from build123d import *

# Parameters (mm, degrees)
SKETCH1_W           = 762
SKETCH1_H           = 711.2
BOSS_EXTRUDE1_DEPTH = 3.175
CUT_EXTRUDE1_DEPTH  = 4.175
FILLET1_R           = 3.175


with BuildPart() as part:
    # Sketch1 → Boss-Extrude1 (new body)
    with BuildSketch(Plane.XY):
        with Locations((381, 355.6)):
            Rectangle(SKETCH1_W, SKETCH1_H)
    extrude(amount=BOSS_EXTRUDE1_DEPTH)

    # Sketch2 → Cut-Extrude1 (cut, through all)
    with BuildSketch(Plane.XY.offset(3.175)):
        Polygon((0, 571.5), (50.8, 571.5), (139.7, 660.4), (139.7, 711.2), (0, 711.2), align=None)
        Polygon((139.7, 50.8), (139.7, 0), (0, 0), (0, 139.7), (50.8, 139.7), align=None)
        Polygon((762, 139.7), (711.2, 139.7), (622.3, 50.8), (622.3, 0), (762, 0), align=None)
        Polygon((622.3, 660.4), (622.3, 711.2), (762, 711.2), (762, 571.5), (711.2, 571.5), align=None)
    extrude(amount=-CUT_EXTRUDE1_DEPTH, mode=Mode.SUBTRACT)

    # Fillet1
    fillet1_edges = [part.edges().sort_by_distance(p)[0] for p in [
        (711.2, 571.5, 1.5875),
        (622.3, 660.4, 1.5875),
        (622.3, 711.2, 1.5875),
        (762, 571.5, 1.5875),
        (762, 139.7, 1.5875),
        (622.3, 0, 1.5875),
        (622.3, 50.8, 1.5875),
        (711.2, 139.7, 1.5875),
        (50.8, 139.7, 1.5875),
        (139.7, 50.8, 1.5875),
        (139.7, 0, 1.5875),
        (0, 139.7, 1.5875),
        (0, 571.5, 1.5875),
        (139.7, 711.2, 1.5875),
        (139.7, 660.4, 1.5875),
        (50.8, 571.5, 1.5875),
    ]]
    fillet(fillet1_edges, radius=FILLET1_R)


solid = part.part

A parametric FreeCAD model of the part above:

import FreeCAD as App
import Part
import Sketcher
from FreeCAD import Vector
Q = App.Units.Quantity


def edges_at(feature, points):
    """Names of the edges that pass closest to the given points."""
    edges = feature.Shape.Edges
    near = lambda p: min(range(len(edges)), key=lambda i: edges[i].distToShape(Part.Vertex(*p))[0])
    return sorted({f"Edge{near(p) + 1}" for p in points})

doc = App.newDocument("Part")
body = doc.addObject("PartDesign::Body", "Body")

sketch1 = doc.addObject("Sketcher::SketchObject", "Sketch")
body.addObject(sketch1)
sketch1.AttachmentSupport = (doc.XY_Plane, [""])
sketch1.MapMode = "FlatFace"
sketch1.addGeometry(Part.LineSegment(Vector(0, 711, 0), Vector(0, 0, 0)), False)
sketch1.addGeometry(Part.LineSegment(Vector(0, 0, 0), Vector(762, 0, 0)), False)
sketch1.addGeometry(Part.LineSegment(Vector(762, 0, 0), Vector(762, 711, 0)), False)
sketch1.addGeometry(Part.LineSegment(Vector(762, 711, 0), Vector(0, 711, 0)), False)
sketch1.addConstraint(Sketcher.Constraint("Coincident", 0, 2, 1, 1))
sketch1.addConstraint(Sketcher.Constraint("Coincident", 1, 2, 2, 1))
sketch1.addConstraint(Sketcher.Constraint("Coincident", 2, 2, 3, 1))
sketch1.addConstraint(Sketcher.Constraint("Coincident", 3, 2, 0, 1))
sketch1.addConstraint(Sketcher.Constraint("Vertical", 0))
sketch1.addConstraint(Sketcher.Constraint("Horizontal", 1))
sketch1.addConstraint(Sketcher.Constraint("Vertical", 2))
sketch1.addConstraint(Sketcher.Constraint("Horizontal", 3))
sketch1.addConstraint(Sketcher.Constraint("Coincident", 0, 2, -1, 1))
sketch1.addConstraint(Sketcher.Constraint("DistanceX", 1, 1, 1, 2, Q("30 in")))
sketch1.addConstraint(Sketcher.Constraint("DistanceY", 0, 2, 0, 1, Q("28 in")))
pad1 = doc.addObject("PartDesign::Pad", "Pad")
body.addObject(pad1)
pad1.Profile = sketch1
pad1.Length = Q("0.125 in")

sketch2 = doc.addObject("Sketcher::SketchObject", "Sketch001")
body.addObject(sketch2)
sketch2.AttachmentSupport = (doc.XY_Plane, [""])
sketch2.MapMode = "FlatFace"
sketch2.AttachmentOffset = App.Placement(Vector(0, 0, 0.125 * 25.4), App.Rotation())
sketch2.addGeometry(Part.LineSegment(Vector(0, 572, 0), Vector(51, 572, 0)), False)
sketch2.addGeometry(Part.LineSegment(Vector(51, 572, 0), Vector(140, 660, 0)), False)
sketch2.addGeometry(Part.LineSegment(Vector(140, 660, 0), Vector(140, 711, 0)), False)
sketch2.addGeometry(Part.LineSegment(Vector(140, 711, 0), Vector(0, 711, 0)), False)
sketch2.addGeometry(Part.LineSegment(Vector(0, 711, 0), Vector(0, 572, 0)), False)
sketch2.addGeometry(Part.LineSegment(Vector(140, 0, 0), Vector(140, 51, 0)), False)
sketch2.addGeometry(Part.LineSegment(Vector(140, 51, 0), Vector(51, 140, 0)), False)
sketch2.addGeometry(Part.LineSegment(Vector(51, 140, 0), Vector(0, 140, 0)), False)
sketch2.addGeometry(Part.LineSegment(Vector(0, 140, 0), Vector(0, 0, 0)), False)
sketch2.addGeometry(Part.LineSegment(Vector(0, 0, 0), Vector(140, 0, 0)), False)
sketch2.addGeometry(Part.LineSegment(Vector(762, 140, 0), Vector(711, 140, 0)), False)
sketch2.addGeometry(Part.LineSegment(Vector(711, 140, 0), Vector(622, 51, 0)), False)
sketch2.addGeometry(Part.LineSegment(Vector(622, 51, 0), Vector(622, 0, 0)), False)
sketch2.addGeometry(Part.LineSegment(Vector(622, 0, 0), Vector(762, 0, 0)), False)
sketch2.addGeometry(Part.LineSegment(Vector(762, 0, 0), Vector(762, 140, 0)), False)
sketch2.addGeometry(Part.LineSegment(Vector(622, 711, 0), Vector(622, 660, 0)), False)
sketch2.addGeometry(Part.LineSegment(Vector(622, 660, 0), Vector(711, 572, 0)), False)
sketch2.addGeometry(Part.LineSegment(Vector(711, 572, 0), Vector(762, 572, 0)), False)
sketch2.addGeometry(Part.LineSegment(Vector(762, 572, 0), Vector(762, 711, 0)), False)
sketch2.addGeometry(Part.LineSegment(Vector(762, 711, 0), Vector(622, 711, 0)), False)
sketch2.addConstraint(Sketcher.Constraint("Coincident", 0, 2, 1, 1))
sketch2.addConstraint(Sketcher.Constraint("Coincident", 1, 2, 2, 1))
sketch2.addConstraint(Sketcher.Constraint("Coincident", 2, 2, 3, 1))
sketch2.addConstraint(Sketcher.Constraint("Coincident", 3, 2, 4, 1))
sketch2.addConstraint(Sketcher.Constraint("Coincident", 4, 2, 0, 1))
sketch2.addConstraint(Sketcher.Constraint("Coincident", 5, 2, 6, 1))
sketch2.addConstraint(Sketcher.Constraint("Coincident", 6, 2, 7, 1))
sketch2.addConstraint(Sketcher.Constraint("Coincident", 7, 2, 8, 1))
sketch2.addConstraint(Sketcher.Constraint("Coincident", 8, 2, 9, 1))
sketch2.addConstraint(Sketcher.Constraint("Coincident", 9, 2, 5, 1))
sketch2.addConstraint(Sketcher.Constraint("Coincident", 10, 2, 11, 1))
sketch2.addConstraint(Sketcher.Constraint("Coincident", 11, 2, 12, 1))
sketch2.addConstraint(Sketcher.Constraint("Coincident", 12, 2, 13, 1))
sketch2.addConstraint(Sketcher.Constraint("Coincident", 13, 2, 14, 1))
sketch2.addConstraint(Sketcher.Constraint("Coincident", 14, 2, 10, 1))
sketch2.addConstraint(Sketcher.Constraint("Coincident", 15, 2, 16, 1))
sketch2.addConstraint(Sketcher.Constraint("Coincident", 16, 2, 17, 1))
sketch2.addConstraint(Sketcher.Constraint("Coincident", 17, 2, 18, 1))
sketch2.addConstraint(Sketcher.Constraint("Coincident", 18, 2, 19, 1))
sketch2.addConstraint(Sketcher.Constraint("Coincident", 19, 2, 15, 1))
sketch2.addConstraint(Sketcher.Constraint("Horizontal", 0))
sketch2.addConstraint(Sketcher.Constraint("Vertical", 2))
sketch2.addConstraint(Sketcher.Constraint("Horizontal", 3))
sketch2.addConstraint(Sketcher.Constraint("Vertical", 4))
sketch2.addConstraint(Sketcher.Constraint("Vertical", 5))
sketch2.addConstraint(Sketcher.Constraint("Horizontal", 7))
sketch2.addConstraint(Sketcher.Constraint("Vertical", 8))
sketch2.addConstraint(Sketcher.Constraint("Horizontal", 9))
sketch2.addConstraint(Sketcher.Constraint("Horizontal", 10))
sketch2.addConstraint(Sketcher.Constraint("Vertical", 12))
sketch2.addConstraint(Sketcher.Constraint("Horizontal", 13))
sketch2.addConstraint(Sketcher.Constraint("Vertical", 14))
sketch2.addConstraint(Sketcher.Constraint("Vertical", 15))
sketch2.addConstraint(Sketcher.Constraint("Horizontal", 17))
sketch2.addConstraint(Sketcher.Constraint("Vertical", 18))
sketch2.addConstraint(Sketcher.Constraint("Horizontal", 19))
sketch2.addConstraint(Sketcher.Constraint("Coincident", 8, 2, -1, 1))
sketch2.addConstraint(Sketcher.Constraint("PointOnObject", 3, 2, -2))
sketch2.addConstraint(Sketcher.Constraint("PointOnObject", 12, 2, -1))
sketch2.addConstraint(Sketcher.Constraint("Perpendicular", 1, 6))
sketch2.addConstraint(Sketcher.Constraint("Perpendicular", 6, 11))
sketch2.addConstraint(Sketcher.Constraint("Perpendicular", 11, 16))
sketch2.addConstraint(Sketcher.Constraint("Horizontal", 7, 2, 10, 2))
sketch2.addConstraint(Sketcher.Constraint("Horizontal", 5, 2, 11, 2))
sketch2.addConstraint(Sketcher.Constraint("Horizontal", 1, 2, 15, 2))
sketch2.addConstraint(Sketcher.Constraint("Horizontal", 4, 2, 16, 2))
sketch2.addConstraint(Sketcher.Constraint("Horizontal", 3, 2, 18, 2))
sketch2.addConstraint(Sketcher.Constraint("Vertical", 2, 2, 5, 2))
sketch2.addConstraint(Sketcher.Constraint("Vertical", 0, 2, 6, 2))
sketch2.addConstraint(Sketcher.Constraint("Vertical", 12, 2, 15, 2))
sketch2.addConstraint(Sketcher.Constraint("Vertical", 10, 2, 16, 2))
sketch2.addConstraint(Sketcher.Constraint("Vertical", 14, 2, 17, 2))
sketch2.addConstraint(Sketcher.Constraint("Equal", 7, 10))
sketch2.addConstraint(Sketcher.Constraint("Equal", 17, 2))
sketch2.addConstraint(Sketcher.Constraint("Equal", 2, 5))
sketch2.addConstraint(Sketcher.Constraint("DistanceX", 0, 1, 0, 2, Q("2 in")))
sketch2.addConstraint(Sketcher.Constraint("DistanceX", 3, 2, 3, 1, Q("5.5 in")))
sketch2.addConstraint(Sketcher.Constraint("DistanceY", -1, 1, 1, 2, Q("26 in")))
sketch2.addConstraint(Sketcher.Constraint("DistanceX", -1, 1, 10, 2, Q("28 in")))
pocket1 = doc.addObject("PartDesign::Pocket", "Pocket")
body.addObject(pocket1)
pocket1.Profile = sketch2
pocket1.Type = "ThroughAll"
doc.recompute()

fillet = doc.addObject("PartDesign::Fillet", "Fillet")
body.addObject(fillet)
fillet.Base = (pocket1, edges_at(pocket1, [
    (711.2, 571.5, 1.587),
    (622.3, 660.4, 1.587),
    (622.3, 711.2, 1.587),
    (762, 571.5, 1.587),
    (762, 139.7, 1.587),
    (622.3, 0, 1.587),
    (622.3, 50.8, 1.587),
    (711.2, 139.7, 1.587),
    (50.8, 139.7, 1.587),
    (139.7, 50.8, 1.587),
    (139.7, 0, 1.587),
    (0, 139.7, 1.587),
    (0, 571.5, 1.587),
    (139.7, 711.2, 1.587),
    (139.7, 660.4, 1.587),
    (50.8, 571.5, 1.587),
]))
fillet.Radius = Q("0.125 in")

doc.recompute()
